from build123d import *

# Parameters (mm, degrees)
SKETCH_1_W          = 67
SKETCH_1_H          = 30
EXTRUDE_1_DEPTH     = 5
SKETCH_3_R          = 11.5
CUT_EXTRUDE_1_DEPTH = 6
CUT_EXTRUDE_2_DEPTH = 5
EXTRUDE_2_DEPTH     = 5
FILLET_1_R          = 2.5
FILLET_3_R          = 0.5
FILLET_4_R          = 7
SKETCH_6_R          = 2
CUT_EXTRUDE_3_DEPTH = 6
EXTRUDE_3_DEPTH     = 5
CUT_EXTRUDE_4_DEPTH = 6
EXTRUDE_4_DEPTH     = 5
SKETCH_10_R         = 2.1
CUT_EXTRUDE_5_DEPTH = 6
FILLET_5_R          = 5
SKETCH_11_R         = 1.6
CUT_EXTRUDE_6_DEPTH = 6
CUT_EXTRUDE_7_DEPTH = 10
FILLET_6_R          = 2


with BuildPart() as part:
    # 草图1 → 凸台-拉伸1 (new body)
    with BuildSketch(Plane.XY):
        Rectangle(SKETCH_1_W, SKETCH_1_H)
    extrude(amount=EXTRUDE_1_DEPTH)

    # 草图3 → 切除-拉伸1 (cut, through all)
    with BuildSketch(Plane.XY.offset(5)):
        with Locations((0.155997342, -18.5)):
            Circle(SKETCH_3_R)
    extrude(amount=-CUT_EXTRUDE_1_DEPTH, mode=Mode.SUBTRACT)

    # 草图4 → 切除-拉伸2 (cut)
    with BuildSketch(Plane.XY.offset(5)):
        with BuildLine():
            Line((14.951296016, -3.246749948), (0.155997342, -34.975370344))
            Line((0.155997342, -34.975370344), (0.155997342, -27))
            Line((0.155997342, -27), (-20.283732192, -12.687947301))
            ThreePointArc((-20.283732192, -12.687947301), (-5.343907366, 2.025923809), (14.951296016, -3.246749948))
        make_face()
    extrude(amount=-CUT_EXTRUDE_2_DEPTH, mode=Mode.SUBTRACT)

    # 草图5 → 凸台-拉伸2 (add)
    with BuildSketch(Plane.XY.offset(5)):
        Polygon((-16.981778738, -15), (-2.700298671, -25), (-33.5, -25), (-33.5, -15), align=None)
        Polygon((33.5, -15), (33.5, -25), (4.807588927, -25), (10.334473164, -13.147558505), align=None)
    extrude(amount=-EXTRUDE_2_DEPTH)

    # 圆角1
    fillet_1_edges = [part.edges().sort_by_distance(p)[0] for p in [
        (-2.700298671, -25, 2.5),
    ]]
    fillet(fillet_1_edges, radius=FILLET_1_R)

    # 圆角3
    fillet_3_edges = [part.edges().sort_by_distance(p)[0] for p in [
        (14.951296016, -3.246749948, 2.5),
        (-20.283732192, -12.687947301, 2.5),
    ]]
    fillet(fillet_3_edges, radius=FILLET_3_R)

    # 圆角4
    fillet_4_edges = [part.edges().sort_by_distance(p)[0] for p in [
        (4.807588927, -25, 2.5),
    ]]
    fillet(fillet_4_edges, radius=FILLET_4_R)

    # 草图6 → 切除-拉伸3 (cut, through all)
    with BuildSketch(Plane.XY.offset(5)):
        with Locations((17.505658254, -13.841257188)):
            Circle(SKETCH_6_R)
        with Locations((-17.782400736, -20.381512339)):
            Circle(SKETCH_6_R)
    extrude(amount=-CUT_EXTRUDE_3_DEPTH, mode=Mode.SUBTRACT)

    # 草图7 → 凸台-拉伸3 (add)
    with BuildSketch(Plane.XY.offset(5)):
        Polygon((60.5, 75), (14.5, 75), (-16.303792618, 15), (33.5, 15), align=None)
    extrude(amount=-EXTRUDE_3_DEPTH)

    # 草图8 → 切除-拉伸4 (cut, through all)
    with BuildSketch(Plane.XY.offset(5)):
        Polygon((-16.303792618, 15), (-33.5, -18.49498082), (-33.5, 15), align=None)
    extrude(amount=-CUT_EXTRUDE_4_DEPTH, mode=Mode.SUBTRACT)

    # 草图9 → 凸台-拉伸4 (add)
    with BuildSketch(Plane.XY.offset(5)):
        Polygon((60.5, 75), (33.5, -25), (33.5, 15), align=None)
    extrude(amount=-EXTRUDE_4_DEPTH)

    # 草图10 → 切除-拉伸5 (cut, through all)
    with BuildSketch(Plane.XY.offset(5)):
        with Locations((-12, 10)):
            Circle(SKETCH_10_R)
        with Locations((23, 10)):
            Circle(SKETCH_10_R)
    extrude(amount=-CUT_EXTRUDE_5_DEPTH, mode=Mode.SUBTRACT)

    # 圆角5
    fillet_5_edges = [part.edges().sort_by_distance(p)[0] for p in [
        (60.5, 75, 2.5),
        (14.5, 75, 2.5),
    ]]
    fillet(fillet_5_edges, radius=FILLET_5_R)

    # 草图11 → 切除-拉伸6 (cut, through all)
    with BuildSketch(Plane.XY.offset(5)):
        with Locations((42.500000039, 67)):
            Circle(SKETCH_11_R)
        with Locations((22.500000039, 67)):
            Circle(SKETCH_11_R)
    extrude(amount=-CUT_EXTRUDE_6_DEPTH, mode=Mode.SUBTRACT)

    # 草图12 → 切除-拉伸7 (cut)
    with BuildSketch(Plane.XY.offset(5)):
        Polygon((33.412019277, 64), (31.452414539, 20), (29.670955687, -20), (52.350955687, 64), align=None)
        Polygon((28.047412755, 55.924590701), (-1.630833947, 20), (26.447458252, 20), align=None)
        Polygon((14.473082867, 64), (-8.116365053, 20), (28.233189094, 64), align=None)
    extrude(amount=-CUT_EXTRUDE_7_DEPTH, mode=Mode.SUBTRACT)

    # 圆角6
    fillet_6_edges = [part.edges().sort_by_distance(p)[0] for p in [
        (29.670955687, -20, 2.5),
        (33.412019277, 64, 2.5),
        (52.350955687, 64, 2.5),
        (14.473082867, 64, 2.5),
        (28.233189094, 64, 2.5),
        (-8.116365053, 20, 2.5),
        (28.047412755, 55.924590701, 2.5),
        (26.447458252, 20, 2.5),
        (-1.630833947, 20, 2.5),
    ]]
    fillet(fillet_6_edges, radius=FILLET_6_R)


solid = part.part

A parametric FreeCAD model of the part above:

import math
import FreeCAD as App
import Part
import Sketcher
from FreeCAD import Vector
Q = App.Units.Quantity


def edges_at(feature, points):
    """Names of the edges that pass closest to the given points."""
    edges = feature.Shape.Edges
    near = lambda p: min(range(len(edges)), key=lambda i: edges[i].distToShape(Part.Vertex(*p))[0])
    return sorted({f"Edge{near(p) + 1}" for p in points})


def add_polygon(sketch, points):
    """Adds a closed chain of lines whose ends are joined by coincident constraints."""
    first, n = sketch.GeometryCount, len(points)
    for a, b in zip(points, points[1:] + points[:1]):
        sketch.addGeometry(Part.LineSegment(App.Vector(*a, 0), App.Vector(*b, 0)), False)
    for i in range(n):
        sketch.addConstraint(Sketcher.Constraint("Coincident", first + i, 2, first + (i + 1) % n, 1))

doc = App.newDocument("Part")
body = doc.addObject("PartDesign::Body", "Body")

# Sketch on XY plane
sketch1 = body.newObject("Sketcher::SketchObject", "Sketch")
sketch1.AttachmentSupport = (doc.getObject("XY_Plane"), [""])
sketch1.MapMode = "FlatFace"
add_polygon(sketch1, [(-34, 15), (-34, -15), (34, -15), (34, 15)])  # lines 0-3
sketch1.addConstraint(Sketcher.Constraint("Vertical", 0))
sketch1.addConstraint(Sketcher.Constraint("Horizontal", 1))
sketch1.addConstraint(Sketcher.Constraint("Vertical", 2))
sketch1.addConstraint(Sketcher.Constraint("Horizontal", 3))
sketch1.addConstraint(Sketcher.Constraint("Symmetric", 0, 2, 2, 2, -1, 1))
sketch1.addConstraint(Sketcher.Constraint("DistanceX", 1, 1, 1, 2, 67.0))
sketch1.addConstraint(Sketcher.Constraint("DistanceY", 0, 2, 0, 1, 30.0))
pad1 = body.newObject("PartDesign::Pad", "Pad")
pad1.Profile = sketch1
pad1.Length = 5

# Sketch on XY plane
sketch2 = body.newObject("Sketcher::SketchObject", "Sketch001")
sketch2.AttachmentSupport = (doc.getObject("XY_Plane"), [""])
sketch2.MapMode = "FlatFace"
sketch2.AttachmentOffset = App.Placement(Vector(0, 0, 5), App.Rotation())
sketch2.addGeometry(Part.Circle(Vector(0, -18, 0), Vector(0, 0, 1), 12), False)
sketch2.addConstraint(Sketcher.Constraint("Diameter", 0, 23.0))
sketch2.addConstraint(Sketcher.Constraint("DistanceY", 0, 3, -1, 1, 18.5))
sketch2.addConstraint(Sketcher.Constraint("DistanceX", -1, 1, 0, 3, 0.155997))
pocket1 = body.newObject("PartDesign::Pocket", "Pocket")
pocket1.Profile = sketch2
pocket1.Type = "ThroughAll"

# Sketch on XY plane
sketch3 = body.newObject("Sketcher::SketchObject", "Sketch002")
sketch3.AttachmentSupport = (doc.getObject("XY_Plane"), [""])
sketch3.MapMode = "FlatFace"
sketch3.AttachmentOffset = App.Placement(Vector(0, 0, 5), App.Rotation())
sketch3.addGeometry(Part.LineSegment(Vector(0, -35, 0), Vector(15, -3, 0)), False)
sketch3.addGeometry(Part.ArcOfCircle(Part.Circle(Vector(0, -18, 0), Vector(0, 0, 1), 21), math.radians(46), math.radians(164)), False)
sketch3.addGeometry(Part.LineSegment(Vector(-20, -13, 0), Vector(0, -27, 0)), False)
sketch3.addGeometry(Part.LineSegment(Vector(0, -27, 0), Vector(0, -35, 0)), False)
sketch3.addConstraint(Sketcher.Constraint("Coincident", 0, 2, 1, 1))
sketch3.addConstraint(Sketcher.Constraint("Coincident", 1, 2, 2, 1))
sketch3.addConstraint(Sketcher.Constraint("Coincident", 2, 2, 3, 1))
sketch3.addConstraint(Sketcher.Constraint("Coincident", 3, 2, 0, 1))
sketch3.addConstraint(Sketcher.Constraint("Vertical", 3))
sketch3.addConstraint(Sketcher.Constraint("Vertical", 1, 3, 2, 2))
sketch3.addConstraint(Sketcher.Constraint("Angle", 0, Q("65 deg")))
sketch3.addConstraint(Sketcher.Constraint("Angle", 2, Q("-35 deg")))
sketch3.addConstraint(Sketcher.Constraint("Radius", 1, 21.25))
sketch3.addConstraint(Sketcher.Constraint("DistanceY", 2, 2, -1, 1, 27.0))
sketch3.addConstraint(Sketcher.Constraint("DistanceY", 1, 3, -1, 1, 18.5))
sketch3.addConstraint(Sketcher.Constraint("DistanceY", 3, 2, 3, 1, 7.97537))
sketch3.addConstraint(Sketcher.Constraint("DistanceX", -1, 1, 1, 3, 0.155997))
pocket2 = body.newObject("PartDesign::Pocket", "Pocket001")
pocket2.Profile = sketch3
pocket2.Length = 5

# Sketch on XY plane
sketch4 = body.newObject("Sketcher::SketchObject", "Sketch003")
sketch4.AttachmentSupport = (doc.getObject("XY_Plane"), [""])
sketch4.MapMode = "FlatFace"
sketch4.AttachmentOffset = App.Placement(Vector(0, 0, 5), App.Rotation())
add_polygon(sketch4, [(-3, -25), (-17, -15), (-34, -15), (-34, -25)])  # lines 0-3
add_polygon(sketch4, [(34, -25), (34, -15), (10, -13), (5, -25)])  # lines 4-7
sketch4.addConstraint(Sketcher.Constraint("Horizontal", 1))
sketch4.addConstraint(Sketcher.Constraint("Vertical", 2))
sketch4.addConstraint(Sketcher.Constraint("Horizontal", 3))
sketch4.addConstraint(Sketcher.Constraint("Vertical", 4))
sketch4.addConstraint(Sketcher.Constraint("Horizontal", 7))
sketch4.addConstraint(Sketcher.Constraint("Symmetric", 1, 2, 4, 2, -2))
sketch4.addConstraint(Sketcher.Constraint("Horizontal", 3, 2, 6, 2))
sketch4.addConstraint(Sketcher.Constraint("DistanceY", 2, 2, 2, 1, 10.0))
sketch4.addConstraint(Sketcher.Constraint("Angle", 0, Q("145 deg")))
sketch4.addConstraint(Sketcher.Constraint("Angle", 6, Q("-115 deg")))
sketch4.addConstraint(Sketcher.Constraint("DistanceY", 0, 2, -1, 1, 15.0))
sketch4.addConstraint(Sketcher.Constraint("DistanceX", 1, 2, 4, 2, 67.0))
sketch4.addConstraint(Sketcher.Constraint("DistanceX", 3, 1, 3, 2, 30.799701))
sketch4.addConstraint(Sketcher.Constraint("DistanceX", 7, 1, 7, 2, 28.692411))
sketch4.addConstraint(Sketcher.Constraint("DistanceY", 5, 2, -1, 1, 13.147559))
pad2 = body.newObject("PartDesign::Pad", "Pad001")
pad2.Profile = sketch4
pad2.Length = 5
pad2.Reversed = True
doc.recompute()

fillet = body.newObject("PartDesign::Fillet", "Fillet")
fillet.Base = (pad2, edges_at(pad2, [(-2.7, -25, 2.5)]))
fillet.Radius = 2.5
doc.recompute()

fillet2 = body.newObject("PartDesign::Fillet", "Fillet001")
fillet2.Base = (fillet, edges_at(fillet, [(14.951, -3.247, 2.5), (-20.284, -12.688, 2.5)]))
fillet2.Radius = 0.5
doc.recompute()

fillet3 = body.newObject("PartDesign::Fillet", "Fillet002")
fillet3.Base = (fillet2, edges_at(fillet2, [(4.808, -25, 2.5)]))
fillet3.Radius = 7

# Sketch on XY plane
sketch5 = body.newObject("Sketcher::SketchObject", "Sketch004")
sketch5.AttachmentSupport = (doc.getObject("XY_Plane"), [""])
sketch5.MapMode = "FlatFace"
sketch5.AttachmentOffset = App.Placement(Vector(0, 0, 5), App.Rotation())
sketch5.addGeometry(Part.Circle(Vector(17.5, -13.8, 0), Vector(0, 0, 1), 2), False)
sketch5.addGeometry(Part.Circle(Vector(-17.8, -20.4, 0), Vector(0, 0, 1), 2), False)
sketch5.addConstraint(Sketcher.Constraint("Equal", 0, 1))
sketch5.addConstraint(Sketcher.Constraint("Diameter", 0, 4.0))
sketch5.addConstraint(Sketcher.Constraint("DistanceX", 1, 3, -1, 1, 17.782401))
sketch5.addConstraint(Sketcher.Constraint("DistanceX", -1, 1, 0, 3, 17.505658))
sketch5.addConstraint(Sketcher.Constraint("DistanceY", 0, 3, -1, 1, 13.841257))
sketch5.addConstraint(Sketcher.Constraint("DistanceY", 1, 3, -1, 1, 20.381512))
pocket3 = body.newObject("PartDesign::Pocket", "Pocket002")
pocket3.Profile = sketch5
pocket3.Type = "ThroughAll"

# Sketch on XY plane
sketch6 = body.newObject("Sketcher::SketchObject", "Sketch005")
sketch6.AttachmentSupport = (doc.getObject("XY_Plane"), [""])
sketch6.MapMode = "FlatFace"
sketch6.AttachmentOffset = App.Placement(Vector(0, 0, 5), App.Rotation())
add_polygon(sketch6, [(60, 75), (14, 75), (-16, 15), (34, 15)])  # lines 0-3
sketch6.addConstraint(Sketcher.Constraint("Horizontal", 0))
sketch6.addConstraint(Sketcher.Constraint("Horizontal", 2))
sketch6.addConstraint(Sketcher.Constraint("DistanceX", 0, 2, 0, 1, 46.0))
sketch6.addConstraint(Sketcher.Constraint("DistanceY", -1, 1, 0, 2, 75.0))
sketch6.addConstraint(Sketcher.Constraint("DistanceY", -1, 1, 1, 2, 15.0))
sketch6.addConstraint(Sketcher.Constraint("DistanceX", 0, 2, 2, 2, 19.0))
sketch6.addConstraint(Sketcher.Constraint("DistanceX", -1, 1, 0, 2, 14.5))
sketch6.addConstraint(Sketcher.Constraint("Distance", 1, 67.445338))
pad3 = body.newObject("PartDesign::Pad", "Pad002")
pad3.Profile = sketch6
pad3.Length = 5
pad3.Reversed = True

# Sketch on XY plane
sketch7 = body.newObject("Sketcher::SketchObject", "Sketch006")
sketch7.AttachmentSupport = (doc.getObject("XY_Plane"), [""])
sketch7.MapMode = "FlatFace"
sketch7.AttachmentOffset = App.Placement(Vector(0, 0, 5), App.Rotation())
add_polygon(sketch7, [(-34, -18), (-16, 15), (-34, 15)])  # lines 0-2
sketch7.addConstraint(Sketcher.Constraint("Horizontal", 1))
sketch7.addConstraint(Sketcher.Constraint("Vertical", 2))
sketch7.addConstraint(Sketcher.Constraint("DistanceY", -1, 1, 0, 2, 15.0))
sketch7.addConstraint(Sketcher.Constraint("DistanceX", 1, 2, -1, 1, 33.5))
sketch7.addConstraint(Sketcher.Constraint("DistanceY", 2, 2, 2, 1, 33.494981))
sketch7.addConstraint(Sketcher.Constraint("Distance", 0, 37.651338))
pocket4 = body.newObject("PartDesign::Pocket", "Pocket003")
pocket4.Profile = sketch7
pocket4.Type = "ThroughAll"

# Sketch on XY plane
sketch8 = body.newObject("Sketcher::SketchObject", "Sketch007")
sketch8.AttachmentSupport = (doc.getObject("XY_Plane"), [""])
sketch8.MapMode = "FlatFace"
sketch8.AttachmentOffset = App.Placement(Vector(0, 0, 5), App.Rotation())
add_polygon(sketch8, [(34, -25), (60, 75), (34, 15)])  # lines 0-2
sketch8.addConstraint(Sketcher.Constraint("Vertical", 2))
sketch8.addConstraint(Sketcher.Constraint("DistanceY", 2, 2, 2, 1, 40.0))
sketch8.addConstraint(Sketcher.Constraint("DistanceY", -1, 1, 0, 2, 75.0))
sketch8.addConstraint(Sketcher.Constraint("DistanceY", -1, 1, 1, 2, 15.0))
sketch8.addConstraint(Sketcher.Constraint("DistanceX", 1, 2, 0, 2, 27.0))
sketch8.addConstraint(Sketcher.Constraint("DistanceX", -1, 1, 0, 2, 60.5))
pad4 = body.newObject("PartDesign::Pad", "Pad003")
pad4.Profile = sketch8
pad4.Length = 5
pad4.Reversed = True

# Sketch on XY plane
sketch9 = body.newObject("Sketcher::SketchObject", "Sketch008")
sketch9.AttachmentSupport = (doc.getObject("XY_Plane"), [""])
sketch9.MapMode = "FlatFace"
sketch9.AttachmentOffset = App.Placement(Vector(0, 0, 5), App.Rotation())
sketch9.addGeometry(Part.Circle(Vector(-12, 10, 0), Vector(0, 0, 1), 2.1), False)
sketch9.addGeometry(Part.Circle(Vector(23, 10, 0), Vector(0, 0, 1), 2.1), False)
sketch9.addConstraint(Sketcher.Constraint("Equal", 0, 1))
sketch9.addConstraint(Sketcher.Constraint("Horizontal", 0, 3, 1, 3))
sketch9.addConstraint(Sketcher.Constraint("Diameter", 0, 4.2))
sketch9.addConstraint(Sketcher.Constraint("DistanceX", 0, 3, -1, 1, 12.0))
sketch9.addConstraint(Sketcher.Constraint("DistanceY", -1, 1, 0, 3, 10.0))
sketch9.addConstraint(Sketcher.Constraint("DistanceX", -1, 1, 1, 3, 23.0))
pocket5 = body.newObject("PartDesign::Pocket", "Pocket004")
pocket5.Profile = sketch9
pocket5.Type = "ThroughAll"
doc.recompute()

fillet4 = body.newObject("PartDesign::Fillet", "Fillet003")
fillet4.Base = (pocket5, edges_at(pocket5, [(60.5, 75, 2.5), (14.5, 75, 2.5)]))
fillet4.Radius = 5

# Sketch on XY plane
sketch10 = body.newObject("Sketcher::SketchObject", "Sketch009")
sketch10.AttachmentSupport = (doc.getObject("XY_Plane"), [""])
sketch10.MapMode = "FlatFace"
sketch10.AttachmentOffset = App.Placement(Vector(0, 0, 5), App.Rotation())
sketch10.addGeometry(Part.Circle(Vector(42.5, 67, 0), Vector(0, 0, 1), 1.6), False)
sketch10.addGeometry(Part.Circle(Vector(22.5, 67, 0), Vector(0, 0, 1), 1.6), False)
sketch10.addConstraint(Sketcher.Constraint("Equal", 0, 1))
sketch10.addConstraint(Sketcher.Constraint("Horizontal", 0, 3, 1, 3))
sketch10.addConstraint(Sketcher.Constraint("Diameter", 0, 3.2))
sketch10.addConstraint(Sketcher.Constraint("DistanceY", -1, 1, 0, 3, 67.0))
sketch10.addConstraint(Sketcher.Constraint("DistanceX", 1, 3, 0, 3, 20.0))
sketch10.addConstraint(Sketcher.Constraint("DistanceX", -1, 1, 0, 3, 42.5))
pocket6 = body.newObject("PartDesign::Pocket", "Pocket005")
pocket6.Profile = sketch10
pocket6.Type = "ThroughAll"

# Sketch on XY plane
sketch11 = body.newObject("Sketcher::SketchObject", "Sketch010")
sketch11.AttachmentSupport = (doc.getObject("XY_Plane"), [""])
sketch11.MapMode = "FlatFace"
sketch11.AttachmentOffset = App.Placement(Vector(0, 0, 5), App.Rotation())
add_polygon(sketch11, [(33, 64), (31, 20), (30, -20), (52, 64)])  # lines 0-3
add_polygon(sketch11, [(28, 56), (-2, 20), (26, 20)])  # lines 4-6
add_polygon(sketch11, [(14, 64), (-8, 20), (28, 64)])  # lines 7-9
sketch11.addConstraint(Sketcher.Constraint("Horizontal", 3))
sketch11.addConstraint(Sketcher.Constraint("Horizontal", 5))
sketch11.addConstraint(Sketcher.Constraint("Horizontal", 9))
sketch11.addConstraint(Sketcher.Constraint("Parallel", 0, 1))
sketch11.addConstraint(Sketcher.Constraint("Parallel", 1, 6))
sketch11.addConstraint(Sketcher.Constraint("Parallel", 4, 8))
sketch11.addConstraint(Sketcher.Constraint("Horizontal", 0, 2, 4, 2))
sketch11.addConstraint(Sketcher.Constraint("Horizontal", 5, 2, 7, 2))
sketch11.addConstraint(Sketcher.Constraint("Horizontal", 3, 2, 8, 2))
sketch11.addConstraint(Sketcher.Constraint("DistanceY", -1, 1, 0, 2, 20.0))
sketch11.addConstraint(Sketcher.Constraint("DistanceY", 1, 2, -1, 1, 20.0))
sketch11.addConstraint(Sketcher.Constraint("DistanceY", -1, 1, 2, 2, 64.0))
sketch11.addConstraint(Sketcher.Constraint("DistanceX", 1, 2, 2, 2, 22.68))
sketch11.addConstraint(Sketcher.Constraint("DistanceX", 6, 2, 0, 2, 3.405002))
sketch11.addConstraint(Sketcher.Constraint("Distance", 6, 35.960201))
sketch11.addConstraint(Sketcher.Constraint("Distance", 1, 40.03965))
sketch11.addConstraint(Sketcher.Constraint("Distance", 4, 46.59801))
sketch11.addConstraint(Sketcher.Constraint("DistanceX", 9, 2, 9, 1, 13.760106))
sketch11.addConstraint(Sketcher.Constraint("DistanceX", -1, 1, 3, 2, 33.412019))
sketch11.addConstraint(Sketcher.Constraint("DistanceX", -1, 1, 8, 2, 28.233189))
pocket7 = body.newObject("PartDesign::Pocket", "Pocket006")
pocket7.Profile = sketch11
pocket7.Length = 10
doc.recompute()

fillet5 = body.newObject("PartDesign::Fillet", "Fillet004")
fillet5.Base = (pocket7, edges_at(pocket7, [
    (29.671, -20, 2.5),
    (33.412, 64, 2.5),
    (52.351, 64, 2.5),
    (14.473, 64, 2.5),
    (28.233, 64, 2.5),
    (-8.116, 20, 2.5),
    (28.047, 55.925, 2.5),
    (26.447, 20, 2.5),
    (-1.631, 20, 2.5),
]))
fillet5.Radius = 2

doc.recompute()
